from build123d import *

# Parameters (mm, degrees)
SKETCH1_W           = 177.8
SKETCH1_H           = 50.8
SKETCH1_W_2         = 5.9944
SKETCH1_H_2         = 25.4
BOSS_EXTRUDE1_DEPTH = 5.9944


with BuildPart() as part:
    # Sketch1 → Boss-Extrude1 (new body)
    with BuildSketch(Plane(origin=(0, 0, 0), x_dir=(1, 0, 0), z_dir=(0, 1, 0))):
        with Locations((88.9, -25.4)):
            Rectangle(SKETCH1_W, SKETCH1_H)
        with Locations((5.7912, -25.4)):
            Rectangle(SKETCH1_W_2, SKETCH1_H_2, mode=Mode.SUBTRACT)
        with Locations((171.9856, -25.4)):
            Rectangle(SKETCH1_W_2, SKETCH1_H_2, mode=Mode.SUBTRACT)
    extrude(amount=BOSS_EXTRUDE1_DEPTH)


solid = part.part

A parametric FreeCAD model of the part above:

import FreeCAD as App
import Part
import Sketcher
Q = App.Units.Quantity

doc = App.newDocument("Part")
body = doc.addObject("PartDesign::Body", "Body")

# Sketch on XZ plane
sketch1 = doc.addObject("Sketcher::SketchObject", "Sketch")
body.addObject(sketch1)
sketch1.AttachmentSupport = (doc.XZ_Plane, [""])
sketch1.MapMode = "FlatFace"
sketch1.addGeometry([
    Part.LineSegment(App.Vector(0, 0, 0), App.Vector(0, 51, 0)),  # 0
    Part.LineSegment(App.Vector(0, 51, 0), App.Vector(178, 51, 0)),  # 1
    Part.LineSegment(App.Vector(178, 51, 0), App.Vector(178, 0, 0)),  # 2
    Part.LineSegment(App.Vector(178, 0, 0), App.Vector(0, 0, 0)),  # 3
    Part.LineSegment(App.Vector(9, 38, 0), App.Vector(3, 38, 0)),  # 4
    Part.LineSegment(App.Vector(3, 38, 0), App.Vector(3, 13, 0)),  # 5
    Part.LineSegment(App.Vector(3, 13, 0), App.Vector(9, 13, 0)),  # 6
    Part.LineSegment(App.Vector(9, 13, 0), App.Vector(9, 38, 0)),  # 7
    Part.LineSegment(App.Vector(175, 38, 0), App.Vector(169, 38, 0)),  # 8
    Part.LineSegment(App.Vector(169, 38, 0), App.Vector(169, 13, 0)),  # 9
    Part.LineSegment(App.Vector(169, 13, 0), App.Vector(175, 13, 0)),  # 10
    Part.LineSegment(App.Vector(175, 13, 0), App.Vector(175, 38, 0)),  # 11
], False)
sketch1.addConstraint([
    Sketcher.Constraint("Coincident", 0, 2, 1, 1),
    Sketcher.Constraint("Coincident", 1, 2, 2, 1),
    Sketcher.Constraint("Coincident", 2, 2, 3, 1),
    Sketcher.Constraint("Coincident", 3, 2, 0, 1),
    Sketcher.Constraint("Coincident", 4, 2, 5, 1),
    Sketcher.Constraint("Coincident", 5, 2, 6, 1),
    Sketcher.Constraint("Coincident", 6, 2, 7, 1),
    Sketcher.Constraint("Coincident", 7, 2, 4, 1),
    Sketcher.Constraint("Coincident", 8, 2, 9, 1),
    Sketcher.Constraint("Coincident", 9, 2, 10, 1),
    Sketcher.Constraint("Coincident", 10, 2, 11, 1),
    Sketcher.Constraint("Coincident", 11, 2, 8, 1),
    Sketcher.Constraint("Vertical", 0),
    Sketcher.Constraint("Horizontal", 1),
    Sketcher.Constraint("Vertical", 2),
    Sketcher.Constraint("Horizontal", 3),
    Sketcher.Constraint("Horizontal", 4),
    Sketcher.Constraint("Vertical", 5),
    Sketcher.Constraint("Horizontal", 6),
    Sketcher.Constraint("Vertical", 7),
    Sketcher.Constraint("Horizontal", 8),
    Sketcher.Constraint("Vertical", 9),
    Sketcher.Constraint("Horizontal", 10),
    Sketcher.Constraint("Vertical", 11),
    Sketcher.Constraint("Coincident", 3, 2, -1, 1),
    Sketcher.Constraint("Horizontal", 7, 2, 8, 2),
    Sketcher.Constraint("Horizontal", 6, 2, 9, 2),
    Sketcher.Constraint("Equal", 6, 8),
    Sketcher.Constraint("DistanceX", 1, 1, 1, 2, Q("7 in")),
    Sketcher.Constraint("DistanceY", 0, 1, 0, 2, Q("2 in")),
    Sketcher.Constraint("DistanceY", 5, 2, 5, 1, Q("1 in")),
    Sketcher.Constraint("DistanceY", -1, 1, 4, 2, Q("1.5 in")),
    Sketcher.Constraint("DistanceX", 4, 2, 4, 1, Q("0.236 in")),
    Sketcher.Constraint("DistanceX", -1, 1, 4, 2, Q("0.11 in")),
    Sketcher.Constraint("DistanceX", -1, 1, 8, 2, 168.9884),
])
pad1 = doc.addObject("PartDesign::Pad", "Pad")
body.addObject(pad1)
pad1.Profile = sketch1
pad1.Length = Q("0.236 in")
pad1.Reversed = True

doc.recompute()
